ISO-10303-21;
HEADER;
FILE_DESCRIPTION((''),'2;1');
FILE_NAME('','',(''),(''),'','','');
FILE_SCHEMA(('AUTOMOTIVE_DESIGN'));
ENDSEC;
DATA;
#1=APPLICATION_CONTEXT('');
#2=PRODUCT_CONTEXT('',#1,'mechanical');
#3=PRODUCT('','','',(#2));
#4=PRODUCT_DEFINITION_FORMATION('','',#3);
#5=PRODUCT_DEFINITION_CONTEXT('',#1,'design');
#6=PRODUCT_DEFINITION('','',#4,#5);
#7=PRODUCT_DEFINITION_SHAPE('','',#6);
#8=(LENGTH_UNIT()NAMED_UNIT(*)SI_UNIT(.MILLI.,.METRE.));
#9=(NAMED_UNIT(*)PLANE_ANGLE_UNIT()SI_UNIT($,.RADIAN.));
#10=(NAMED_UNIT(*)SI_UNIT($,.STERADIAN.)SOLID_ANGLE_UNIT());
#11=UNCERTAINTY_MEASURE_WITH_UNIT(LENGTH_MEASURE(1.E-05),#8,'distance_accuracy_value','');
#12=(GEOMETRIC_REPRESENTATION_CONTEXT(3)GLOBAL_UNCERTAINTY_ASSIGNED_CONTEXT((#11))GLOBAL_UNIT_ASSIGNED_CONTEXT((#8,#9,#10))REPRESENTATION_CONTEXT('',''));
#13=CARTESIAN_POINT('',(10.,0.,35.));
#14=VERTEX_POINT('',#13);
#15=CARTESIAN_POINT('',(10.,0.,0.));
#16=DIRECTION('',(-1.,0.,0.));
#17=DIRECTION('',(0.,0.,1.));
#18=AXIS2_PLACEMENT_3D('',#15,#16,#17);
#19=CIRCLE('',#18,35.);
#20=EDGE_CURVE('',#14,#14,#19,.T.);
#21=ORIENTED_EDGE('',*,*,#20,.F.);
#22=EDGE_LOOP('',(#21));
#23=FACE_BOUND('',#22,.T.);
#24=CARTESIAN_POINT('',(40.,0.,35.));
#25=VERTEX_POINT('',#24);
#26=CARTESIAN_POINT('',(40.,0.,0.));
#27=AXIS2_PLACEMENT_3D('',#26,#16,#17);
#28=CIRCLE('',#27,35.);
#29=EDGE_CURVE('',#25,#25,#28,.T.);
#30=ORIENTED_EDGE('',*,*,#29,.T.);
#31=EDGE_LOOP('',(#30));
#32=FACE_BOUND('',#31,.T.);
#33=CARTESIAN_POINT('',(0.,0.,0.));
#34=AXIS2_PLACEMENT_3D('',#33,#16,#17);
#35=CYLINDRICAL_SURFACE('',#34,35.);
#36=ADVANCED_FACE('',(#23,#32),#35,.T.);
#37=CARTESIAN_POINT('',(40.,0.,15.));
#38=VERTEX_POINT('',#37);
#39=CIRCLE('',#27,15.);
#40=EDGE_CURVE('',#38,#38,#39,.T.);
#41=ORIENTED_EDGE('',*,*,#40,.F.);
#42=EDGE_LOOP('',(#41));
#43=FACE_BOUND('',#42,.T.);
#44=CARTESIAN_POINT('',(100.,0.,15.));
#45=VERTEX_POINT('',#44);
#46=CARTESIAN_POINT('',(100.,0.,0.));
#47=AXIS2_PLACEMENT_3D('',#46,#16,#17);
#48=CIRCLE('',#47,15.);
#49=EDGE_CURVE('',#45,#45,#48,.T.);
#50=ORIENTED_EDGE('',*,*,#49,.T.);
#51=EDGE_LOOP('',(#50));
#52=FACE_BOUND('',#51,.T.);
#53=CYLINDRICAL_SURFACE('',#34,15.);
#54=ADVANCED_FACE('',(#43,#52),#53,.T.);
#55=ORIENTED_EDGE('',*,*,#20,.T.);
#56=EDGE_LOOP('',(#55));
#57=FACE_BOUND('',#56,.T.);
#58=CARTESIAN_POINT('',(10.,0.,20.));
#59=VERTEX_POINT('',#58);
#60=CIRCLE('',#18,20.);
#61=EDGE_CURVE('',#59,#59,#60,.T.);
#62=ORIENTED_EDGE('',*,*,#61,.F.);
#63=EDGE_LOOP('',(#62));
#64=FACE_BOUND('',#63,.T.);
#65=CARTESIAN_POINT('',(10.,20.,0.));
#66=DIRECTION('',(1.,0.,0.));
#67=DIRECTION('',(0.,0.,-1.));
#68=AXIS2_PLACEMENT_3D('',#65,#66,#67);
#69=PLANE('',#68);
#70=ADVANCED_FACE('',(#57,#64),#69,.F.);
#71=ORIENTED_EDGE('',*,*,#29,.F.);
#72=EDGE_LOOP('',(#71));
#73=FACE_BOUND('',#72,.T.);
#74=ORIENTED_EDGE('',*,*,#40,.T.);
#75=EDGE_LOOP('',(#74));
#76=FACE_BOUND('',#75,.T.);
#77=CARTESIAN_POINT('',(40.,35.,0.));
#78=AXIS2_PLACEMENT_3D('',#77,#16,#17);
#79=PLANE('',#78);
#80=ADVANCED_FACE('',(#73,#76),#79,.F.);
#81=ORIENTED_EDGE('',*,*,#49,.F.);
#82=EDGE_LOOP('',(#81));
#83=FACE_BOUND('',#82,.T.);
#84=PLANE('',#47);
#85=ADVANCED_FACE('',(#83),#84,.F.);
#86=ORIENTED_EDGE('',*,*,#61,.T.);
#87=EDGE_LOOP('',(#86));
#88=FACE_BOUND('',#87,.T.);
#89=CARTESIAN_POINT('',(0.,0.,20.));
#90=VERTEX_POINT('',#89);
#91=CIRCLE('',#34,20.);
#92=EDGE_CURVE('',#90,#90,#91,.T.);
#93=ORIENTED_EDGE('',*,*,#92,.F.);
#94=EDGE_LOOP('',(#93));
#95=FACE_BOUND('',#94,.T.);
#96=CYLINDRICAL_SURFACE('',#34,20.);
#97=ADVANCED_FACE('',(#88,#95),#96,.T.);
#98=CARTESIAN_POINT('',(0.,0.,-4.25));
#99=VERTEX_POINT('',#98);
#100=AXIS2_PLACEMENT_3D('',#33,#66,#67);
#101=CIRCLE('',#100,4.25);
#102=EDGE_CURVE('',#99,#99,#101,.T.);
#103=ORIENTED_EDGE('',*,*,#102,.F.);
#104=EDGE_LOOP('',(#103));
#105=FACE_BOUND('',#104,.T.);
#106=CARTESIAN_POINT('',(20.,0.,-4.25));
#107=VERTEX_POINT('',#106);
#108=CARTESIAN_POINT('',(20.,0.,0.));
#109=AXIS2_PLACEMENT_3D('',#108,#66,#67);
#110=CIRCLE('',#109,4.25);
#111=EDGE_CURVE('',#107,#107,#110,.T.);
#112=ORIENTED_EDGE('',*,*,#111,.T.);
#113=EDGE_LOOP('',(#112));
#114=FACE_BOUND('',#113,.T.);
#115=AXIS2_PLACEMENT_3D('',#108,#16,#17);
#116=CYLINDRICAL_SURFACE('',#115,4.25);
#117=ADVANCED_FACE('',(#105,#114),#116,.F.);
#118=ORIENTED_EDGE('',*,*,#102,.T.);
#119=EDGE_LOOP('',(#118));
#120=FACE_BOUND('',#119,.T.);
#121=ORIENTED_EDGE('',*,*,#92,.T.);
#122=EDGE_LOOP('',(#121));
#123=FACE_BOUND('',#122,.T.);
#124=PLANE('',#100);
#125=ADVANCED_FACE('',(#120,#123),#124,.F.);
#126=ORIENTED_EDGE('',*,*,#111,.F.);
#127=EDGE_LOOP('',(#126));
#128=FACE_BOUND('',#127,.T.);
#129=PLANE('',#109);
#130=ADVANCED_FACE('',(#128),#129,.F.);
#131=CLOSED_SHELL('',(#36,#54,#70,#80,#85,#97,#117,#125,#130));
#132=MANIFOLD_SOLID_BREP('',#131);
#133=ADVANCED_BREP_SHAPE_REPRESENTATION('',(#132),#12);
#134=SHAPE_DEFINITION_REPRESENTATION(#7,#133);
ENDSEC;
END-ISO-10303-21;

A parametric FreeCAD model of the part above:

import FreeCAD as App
import Part
import Sketcher
Q = App.Units.Quantity


def add_polygon(sketch, points):
    """Adds a closed chain of lines whose ends are joined by coincident constraints."""
    first, n = sketch.GeometryCount, len(points)
    for a, b in zip(points, points[1:] + points[:1]):
        sketch.addGeometry(Part.LineSegment(App.Vector(*a, 0), App.Vector(*b, 0)), False)
    for i in range(n):
        sketch.addConstraint(Sketcher.Constraint("Coincident", first + i, 2, first + (i + 1) % n, 1))

doc = App.newDocument("Part")
body = doc.addObject("PartDesign::Body", "Body")

# Sketch on XY plane
sketch1 = body.newObject("Sketcher::SketchObject", "Sketch")
sketch1.AttachmentSupport = (doc.getObject("XY_Plane"), [""])
sketch1.MapMode = "FlatFace"
add_polygon(sketch1, [(0, 0), (100, 0), (100, 15), (40, 15), (40, 35), (10, 35), (10, 20), (0, 20)])  # lines 0-7
sketch1.addConstraint(Sketcher.Constraint("Horizontal", 0))
sketch1.addConstraint(Sketcher.Constraint("Vertical", 1))
sketch1.addConstraint(Sketcher.Constraint("Horizontal", 2))
sketch1.addConstraint(Sketcher.Constraint("Vertical", 3))
sketch1.addConstraint(Sketcher.Constraint("Horizontal", 4))
sketch1.addConstraint(Sketcher.Constraint("Vertical", 5))
sketch1.addConstraint(Sketcher.Constraint("Horizontal", 6))
sketch1.addConstraint(Sketcher.Constraint("Vertical", 7))
sketch1.addConstraint(Sketcher.Constraint("Coincident", 7, 2, -1, 1))
sketch1.addConstraint(Sketcher.Constraint("Equal", 1, 5))
sketch1.addConstraint(Sketcher.Constraint("DistanceX", 0, 1, 0, 2, Q("100 mm")))
sketch1.addConstraint(Sketcher.Constraint("DistanceX", 2, 2, 2, 1, Q("60 mm")))
sketch1.addConstraint(Sketcher.Constraint("DistanceX", 4, 2, 4, 1, Q("30 mm")))
sketch1.addConstraint(Sketcher.Constraint("DistanceY", 1, 1, 1, 2, Q("15 mm")))
sketch1.addConstraint(Sketcher.Constraint("DistanceY", 3, 1, 3, 2, Q("20 mm")))
revolution = body.newObject("PartDesign::Revolution", "Revolution")
revolution.Profile = sketch1
revolution.ReferenceAxis = (sketch1, ["H_Axis"])
revolution.Angle = 360

# Sketch on YZ plane
sketch2 = body.newObject("Sketcher::SketchObject", "Sketch001")
sketch2.AttachmentSupport = (doc.getObject("YZ_Plane"), [""])
sketch2.MapMode = "FlatFace"
sketch2.addGeometry(Part.Circle(App.Vector(0, 0, 0), App.Vector(0, 0, 1), 4.2), False)
sketch2.addConstraint(Sketcher.Constraint("Coincident", 0, 3, -1, 1))
sketch2.addConstraint(Sketcher.Constraint("Diameter", 0, Q("8.5 mm")))
pocket1 = body.newObject("PartDesign::Pocket", "Pocket")
pocket1.Profile = sketch2
pocket1.Length = 20
pocket1.Reversed = True

doc.recompute()
